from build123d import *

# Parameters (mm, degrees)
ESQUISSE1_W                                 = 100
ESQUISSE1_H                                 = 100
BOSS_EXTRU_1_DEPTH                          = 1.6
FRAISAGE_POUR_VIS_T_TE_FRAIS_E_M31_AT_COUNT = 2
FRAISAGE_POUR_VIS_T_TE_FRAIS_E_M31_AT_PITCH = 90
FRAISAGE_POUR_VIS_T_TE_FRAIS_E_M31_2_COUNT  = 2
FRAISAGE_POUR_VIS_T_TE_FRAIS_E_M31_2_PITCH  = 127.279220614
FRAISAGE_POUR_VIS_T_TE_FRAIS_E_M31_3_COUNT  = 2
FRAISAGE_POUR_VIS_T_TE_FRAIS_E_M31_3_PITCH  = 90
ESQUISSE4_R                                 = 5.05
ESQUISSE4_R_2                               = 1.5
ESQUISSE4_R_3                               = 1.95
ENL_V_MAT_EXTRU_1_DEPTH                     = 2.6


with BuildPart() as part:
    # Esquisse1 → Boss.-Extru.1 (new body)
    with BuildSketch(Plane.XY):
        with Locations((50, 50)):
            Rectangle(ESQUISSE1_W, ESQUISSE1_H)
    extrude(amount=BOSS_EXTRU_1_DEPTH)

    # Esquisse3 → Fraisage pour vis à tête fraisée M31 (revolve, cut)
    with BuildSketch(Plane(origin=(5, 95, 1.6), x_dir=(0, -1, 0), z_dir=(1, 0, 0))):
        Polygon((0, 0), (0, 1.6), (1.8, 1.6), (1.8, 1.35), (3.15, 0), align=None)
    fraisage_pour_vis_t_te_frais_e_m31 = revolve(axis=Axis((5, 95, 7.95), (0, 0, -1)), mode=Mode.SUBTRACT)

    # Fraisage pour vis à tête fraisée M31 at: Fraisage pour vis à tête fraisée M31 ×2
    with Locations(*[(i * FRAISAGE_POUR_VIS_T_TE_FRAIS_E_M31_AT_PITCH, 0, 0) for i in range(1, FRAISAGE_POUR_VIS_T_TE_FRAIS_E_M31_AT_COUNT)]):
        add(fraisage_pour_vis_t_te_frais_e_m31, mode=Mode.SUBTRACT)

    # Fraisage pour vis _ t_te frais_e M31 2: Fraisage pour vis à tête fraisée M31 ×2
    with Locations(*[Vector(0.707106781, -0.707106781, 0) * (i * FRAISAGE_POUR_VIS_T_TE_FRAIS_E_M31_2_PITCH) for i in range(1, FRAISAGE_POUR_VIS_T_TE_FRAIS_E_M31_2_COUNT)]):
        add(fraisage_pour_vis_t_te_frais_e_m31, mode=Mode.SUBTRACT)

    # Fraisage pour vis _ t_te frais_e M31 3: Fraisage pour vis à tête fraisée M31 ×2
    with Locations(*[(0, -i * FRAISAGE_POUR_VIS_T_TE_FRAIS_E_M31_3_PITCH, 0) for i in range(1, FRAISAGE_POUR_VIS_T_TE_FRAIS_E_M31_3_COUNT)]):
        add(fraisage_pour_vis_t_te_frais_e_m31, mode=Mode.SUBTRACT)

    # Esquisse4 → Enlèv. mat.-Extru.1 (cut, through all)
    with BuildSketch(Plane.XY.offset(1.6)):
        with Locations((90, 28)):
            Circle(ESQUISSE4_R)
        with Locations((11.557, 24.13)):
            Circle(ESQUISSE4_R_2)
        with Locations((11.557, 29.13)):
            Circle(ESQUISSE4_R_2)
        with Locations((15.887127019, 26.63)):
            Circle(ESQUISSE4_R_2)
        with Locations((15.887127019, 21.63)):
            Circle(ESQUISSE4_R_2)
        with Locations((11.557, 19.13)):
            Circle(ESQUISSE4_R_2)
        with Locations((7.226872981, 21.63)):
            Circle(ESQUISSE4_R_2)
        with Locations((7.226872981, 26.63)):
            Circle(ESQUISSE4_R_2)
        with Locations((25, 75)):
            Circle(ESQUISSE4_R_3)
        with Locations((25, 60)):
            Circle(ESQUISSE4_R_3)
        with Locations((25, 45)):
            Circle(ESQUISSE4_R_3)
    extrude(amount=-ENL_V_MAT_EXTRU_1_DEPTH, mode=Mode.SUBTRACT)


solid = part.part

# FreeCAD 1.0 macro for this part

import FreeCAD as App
import Part
import Sketcher
Q = App.Units.Quantity


def add_polygon(sketch, points):
    """Adds a closed chain of lines whose ends are joined by coincident constraints."""
    first, n = sketch.GeometryCount, len(points)
    for a, b in zip(points, points[1:] + points[:1]):
        sketch.addGeometry(Part.LineSegment(App.Vector(*a, 0), App.Vector(*b, 0)), False)
    for i in range(n):
        sketch.addConstraint(Sketcher.Constraint("Coincident", first + i, 2, first + (i + 1) % n, 1))

doc = App.newDocument("Part")
body = doc.addObject("PartDesign::Body", "Body")

sketch1 = doc.addObject("Sketcher::SketchObject", "Sketch")
body.addObject(sketch1)
sketch1.AttachmentSupport = (doc.XY_Plane, [""])
sketch1.MapMode = "FlatFace"
add_polygon(sketch1, [(0, 100), (0, 0), (100, 0), (100, 100)])
sketch1.addConstraint([
    Sketcher.Constraint("Vertical", 0),
    Sketcher.Constraint("Horizontal", 1),
    Sketcher.Constraint("Vertical", 2),
    Sketcher.Constraint("Horizontal", 3),
    Sketcher.Constraint("Coincident", 0, 2, -1, 1),
    Sketcher.Constraint("Equal", 3, 0),
    Sketcher.Constraint("DistanceX", 1, 1, 1, 2, Q("100 mm")),
])
pad1 = doc.addObject("PartDesign::Pad", "Pad")
body.addObject(pad1)
pad1.Profile = sketch1
pad1.Length = 1.6

sketch2 = doc.addObject("Sketcher::SketchObject", "Sketch001")
body.addObject(sketch2)
sketch2.AttachmentSupport = (doc.YZ_Plane, [""])
sketch2.MapMode = "FlatFace"
sketch2.AttachmentOffset = App.Placement(App.Vector(0, 0, 5), App.Rotation())
add_polygon(sketch2, [(95, 0), (95, 1.6), (91.85, 1.6), (93.2, 0.25), (93.2, 0)])
sketch2.addGeometry(Part.LineSegment(App.Vector(95, 1.6, 0), App.Vector(95, 0, 0)), True)
sketch2.addConstraint([
    Sketcher.Constraint("Vertical", 0),
    Sketcher.Constraint("Horizontal", 1),
    Sketcher.Constraint("Vertical", 3),
    Sketcher.Constraint("Horizontal", 4),
    Sketcher.Constraint("Vertical", 5),
    Sketcher.Constraint("Coincident", 5, 1, 0, 2),
    Sketcher.Constraint("PointOnObject", 3, 2, -1),
    Sketcher.Constraint("PointOnObject", 5, 2, -1),
    Sketcher.Constraint("Angle", 2, Q("-45 deg")),
    Sketcher.Constraint("DistanceX", 4, 1, 4, 2, Q("1.8 mm")),
    Sketcher.Constraint("DistanceY", 0, 1, 0, 2, Q("1.6 mm")),
    Sketcher.Constraint("DistanceX", -1, 1, 0, 2, Q("95 mm")),
    Sketcher.Constraint("DistanceX", 1, 2, 1, 1, Q("3.15 mm")),
])
groove = doc.addObject("PartDesign::Groove", "Groove")
body.addObject(groove)
groove.Profile = sketch2
groove.ReferenceAxis = (sketch2, ["Axis0"])
groove.Angle = 360
doc.recompute()

linearpattern = doc.addObject("PartDesign::LinearPattern", "LinearPattern")
body.addObject(linearpattern)
linearpattern.Originals = [groove]
linearpattern.Direction = (doc.X_Axis, [""])
linearpattern.Mode = "offset"
linearpattern.Offset = 90
linearpattern.Occurrences = 2
body.Tip = linearpattern
doc.recompute()

datumline = doc.addObject("PartDesign::Line", "DatumLine")
body.addObject(datumline)
datumline.Placement = App.Placement(App.Vector(0, 0, 0), App.Rotation(App.Vector(0, 0, 1), App.Vector(0.707106781, -0.707106781, 0)))
linearpattern2 = doc.addObject("PartDesign::LinearPattern", "LinearPattern001")
body.addObject(linearpattern2)
linearpattern2.Originals = [groove]
linearpattern2.Direction = (datumline, [""])
linearpattern2.Mode = "offset"
linearpattern2.Offset = 127.279221
linearpattern2.Occurrences = 2
body.Tip = linearpattern2
doc.recompute()

linearpattern3 = doc.addObject("PartDesign::LinearPattern", "LinearPattern002")
body.addObject(linearpattern3)
linearpattern3.Originals = [groove]
linearpattern3.Direction = (doc.Y_Axis, [""])
linearpattern3.Mode = "offset"
linearpattern3.Offset = 90
linearpattern3.Occurrences = 2
linearpattern3.Reversed = True
body.Tip = linearpattern3

sketch3 = doc.addObject("Sketcher::SketchObject", "Sketch002")
body.addObject(sketch3)
sketch3.AttachmentSupport = (doc.XY_Plane, [""])
sketch3.MapMode = "FlatFace"
sketch3.AttachmentOffset = App.Placement(App.Vector(0, 0, 1.6), App.Rotation())
sketch3.addGeometry([
    Part.Circle(App.Vector(90, 28, 0), App.Vector(0, 0, 1), 5.05),
    Part.Circle(App.Vector(11.557, 24.13, 0), App.Vector(0, 0, 1), 1.5),
    Part.Circle(App.Vector(11.557, 29.13, 0), App.Vector(0, 0, 1), 1.5),
    Part.Circle(App.Vector(15.887127, 26.63, 0), App.Vector(0, 0, 1), 1.5),
    Part.Circle(App.Vector(15.887127, 21.63, 0), App.Vector(0, 0, 1), 1.5),
    Part.Circle(App.Vector(11.557, 19.13, 0), App.Vector(0, 0, 1), 1.5),
    Part.Circle(App.Vector(7.226873, 21.63, 0), App.Vector(0, 0, 1), 1.5),
    Part.Circle(App.Vector(7.226873, 26.63, 0), App.Vector(0, 0, 1), 1.5),
    Part.Circle(App.Vector(25, 75, 0), App.Vector(0, 0, 1), 1.95),
    Part.Circle(App.Vector(25, 60, 0), App.Vector(0, 0, 1), 1.95),
    Part.Circle(App.Vector(25, 45, 0), App.Vector(0, 0, 1), 1.95),
], False)
sketch3.addConstraint([
    Sketcher.Constraint("Equal", 1, 2),
    Sketcher.Constraint("Equal", 2, 3),
    Sketcher.Constraint("Equal", 3, 4),
    Sketcher.Constraint("Equal", 4, 5),
    Sketcher.Constraint("Equal", 5, 6),
    Sketcher.Constraint("Equal", 6, 7),
    Sketcher.Constraint("Equal", 8, 9),
    Sketcher.Constraint("Equal", 9, 10),
    Sketcher.Constraint("Horizontal", 4, 3, 6, 3),
    Sketcher.Constraint("Horizontal", 3, 3, 7, 3),
    Sketcher.Constraint("Vertical", 1, 3, 2, 3),
    Sketcher.Constraint("Vertical", 3, 3, 4, 3),
    Sketcher.Constraint("Vertical", 2, 3, 5, 3),
    Sketcher.Constraint("Vertical", 6, 3, 7, 3),
    Sketcher.Constraint("Vertical", 8, 3, 9, 3),
    Sketcher.Constraint("Vertical", 9, 3, 10, 3),
    Sketcher.Constraint("Diameter", 1, Q("3 mm")),
    Sketcher.Constraint("Diameter", 0, Q("10.1 mm")),
    Sketcher.Constraint("Diameter", 8, Q("3.9 mm")),
    Sketcher.Constraint("DistanceX", -1, 1, 0, 3, Q("90 mm")),
    Sketcher.Constraint("DistanceY", -1, 1, 0, 3, Q("28 mm")),
    Sketcher.Constraint("DistanceX", -1, 1, 8, 3, Q("25 mm")),
    Sketcher.Constraint("DistanceY", -1, 1, 8, 3, Q("75 mm")),
    Sketcher.Constraint("DistanceY", -1, 1, 9, 3, Q("60 mm")),
    Sketcher.Constraint("DistanceY", -1, 1, 10, 3, Q("45 mm")),
    Sketcher.Constraint("DistanceY", 1, 3, 2, 3, Q("5 mm")),
    Sketcher.Constraint("DistanceY", 4, 3, 3, 3, Q("5 mm")),
    Sketcher.Constraint("DistanceY", 5, 3, 1, 3, Q("5 mm")),
    Sketcher.Constraint("DistanceY", 1, 3, 3, 3, Q("2.5 mm")),
    Sketcher.Constraint("DistanceY", -1, 1, 1, 3, Q("24.13 mm")),
    Sketcher.Constraint("DistanceX", -1, 1, 1, 3, Q("11.557 mm")),
    Sketcher.Constraint("DistanceX", -1, 1, 3, 3, Q("15.887127 mm")),
    Sketcher.Constraint("DistanceX", -1, 1, 6, 3, Q("7.226873 mm")),
])
pocket1 = doc.addObject("PartDesign::Pocket", "Pocket")
body.addObject(pocket1)
pocket1.Profile = sketch3
pocket1.Type = "ThroughAll"

doc.recompute()
